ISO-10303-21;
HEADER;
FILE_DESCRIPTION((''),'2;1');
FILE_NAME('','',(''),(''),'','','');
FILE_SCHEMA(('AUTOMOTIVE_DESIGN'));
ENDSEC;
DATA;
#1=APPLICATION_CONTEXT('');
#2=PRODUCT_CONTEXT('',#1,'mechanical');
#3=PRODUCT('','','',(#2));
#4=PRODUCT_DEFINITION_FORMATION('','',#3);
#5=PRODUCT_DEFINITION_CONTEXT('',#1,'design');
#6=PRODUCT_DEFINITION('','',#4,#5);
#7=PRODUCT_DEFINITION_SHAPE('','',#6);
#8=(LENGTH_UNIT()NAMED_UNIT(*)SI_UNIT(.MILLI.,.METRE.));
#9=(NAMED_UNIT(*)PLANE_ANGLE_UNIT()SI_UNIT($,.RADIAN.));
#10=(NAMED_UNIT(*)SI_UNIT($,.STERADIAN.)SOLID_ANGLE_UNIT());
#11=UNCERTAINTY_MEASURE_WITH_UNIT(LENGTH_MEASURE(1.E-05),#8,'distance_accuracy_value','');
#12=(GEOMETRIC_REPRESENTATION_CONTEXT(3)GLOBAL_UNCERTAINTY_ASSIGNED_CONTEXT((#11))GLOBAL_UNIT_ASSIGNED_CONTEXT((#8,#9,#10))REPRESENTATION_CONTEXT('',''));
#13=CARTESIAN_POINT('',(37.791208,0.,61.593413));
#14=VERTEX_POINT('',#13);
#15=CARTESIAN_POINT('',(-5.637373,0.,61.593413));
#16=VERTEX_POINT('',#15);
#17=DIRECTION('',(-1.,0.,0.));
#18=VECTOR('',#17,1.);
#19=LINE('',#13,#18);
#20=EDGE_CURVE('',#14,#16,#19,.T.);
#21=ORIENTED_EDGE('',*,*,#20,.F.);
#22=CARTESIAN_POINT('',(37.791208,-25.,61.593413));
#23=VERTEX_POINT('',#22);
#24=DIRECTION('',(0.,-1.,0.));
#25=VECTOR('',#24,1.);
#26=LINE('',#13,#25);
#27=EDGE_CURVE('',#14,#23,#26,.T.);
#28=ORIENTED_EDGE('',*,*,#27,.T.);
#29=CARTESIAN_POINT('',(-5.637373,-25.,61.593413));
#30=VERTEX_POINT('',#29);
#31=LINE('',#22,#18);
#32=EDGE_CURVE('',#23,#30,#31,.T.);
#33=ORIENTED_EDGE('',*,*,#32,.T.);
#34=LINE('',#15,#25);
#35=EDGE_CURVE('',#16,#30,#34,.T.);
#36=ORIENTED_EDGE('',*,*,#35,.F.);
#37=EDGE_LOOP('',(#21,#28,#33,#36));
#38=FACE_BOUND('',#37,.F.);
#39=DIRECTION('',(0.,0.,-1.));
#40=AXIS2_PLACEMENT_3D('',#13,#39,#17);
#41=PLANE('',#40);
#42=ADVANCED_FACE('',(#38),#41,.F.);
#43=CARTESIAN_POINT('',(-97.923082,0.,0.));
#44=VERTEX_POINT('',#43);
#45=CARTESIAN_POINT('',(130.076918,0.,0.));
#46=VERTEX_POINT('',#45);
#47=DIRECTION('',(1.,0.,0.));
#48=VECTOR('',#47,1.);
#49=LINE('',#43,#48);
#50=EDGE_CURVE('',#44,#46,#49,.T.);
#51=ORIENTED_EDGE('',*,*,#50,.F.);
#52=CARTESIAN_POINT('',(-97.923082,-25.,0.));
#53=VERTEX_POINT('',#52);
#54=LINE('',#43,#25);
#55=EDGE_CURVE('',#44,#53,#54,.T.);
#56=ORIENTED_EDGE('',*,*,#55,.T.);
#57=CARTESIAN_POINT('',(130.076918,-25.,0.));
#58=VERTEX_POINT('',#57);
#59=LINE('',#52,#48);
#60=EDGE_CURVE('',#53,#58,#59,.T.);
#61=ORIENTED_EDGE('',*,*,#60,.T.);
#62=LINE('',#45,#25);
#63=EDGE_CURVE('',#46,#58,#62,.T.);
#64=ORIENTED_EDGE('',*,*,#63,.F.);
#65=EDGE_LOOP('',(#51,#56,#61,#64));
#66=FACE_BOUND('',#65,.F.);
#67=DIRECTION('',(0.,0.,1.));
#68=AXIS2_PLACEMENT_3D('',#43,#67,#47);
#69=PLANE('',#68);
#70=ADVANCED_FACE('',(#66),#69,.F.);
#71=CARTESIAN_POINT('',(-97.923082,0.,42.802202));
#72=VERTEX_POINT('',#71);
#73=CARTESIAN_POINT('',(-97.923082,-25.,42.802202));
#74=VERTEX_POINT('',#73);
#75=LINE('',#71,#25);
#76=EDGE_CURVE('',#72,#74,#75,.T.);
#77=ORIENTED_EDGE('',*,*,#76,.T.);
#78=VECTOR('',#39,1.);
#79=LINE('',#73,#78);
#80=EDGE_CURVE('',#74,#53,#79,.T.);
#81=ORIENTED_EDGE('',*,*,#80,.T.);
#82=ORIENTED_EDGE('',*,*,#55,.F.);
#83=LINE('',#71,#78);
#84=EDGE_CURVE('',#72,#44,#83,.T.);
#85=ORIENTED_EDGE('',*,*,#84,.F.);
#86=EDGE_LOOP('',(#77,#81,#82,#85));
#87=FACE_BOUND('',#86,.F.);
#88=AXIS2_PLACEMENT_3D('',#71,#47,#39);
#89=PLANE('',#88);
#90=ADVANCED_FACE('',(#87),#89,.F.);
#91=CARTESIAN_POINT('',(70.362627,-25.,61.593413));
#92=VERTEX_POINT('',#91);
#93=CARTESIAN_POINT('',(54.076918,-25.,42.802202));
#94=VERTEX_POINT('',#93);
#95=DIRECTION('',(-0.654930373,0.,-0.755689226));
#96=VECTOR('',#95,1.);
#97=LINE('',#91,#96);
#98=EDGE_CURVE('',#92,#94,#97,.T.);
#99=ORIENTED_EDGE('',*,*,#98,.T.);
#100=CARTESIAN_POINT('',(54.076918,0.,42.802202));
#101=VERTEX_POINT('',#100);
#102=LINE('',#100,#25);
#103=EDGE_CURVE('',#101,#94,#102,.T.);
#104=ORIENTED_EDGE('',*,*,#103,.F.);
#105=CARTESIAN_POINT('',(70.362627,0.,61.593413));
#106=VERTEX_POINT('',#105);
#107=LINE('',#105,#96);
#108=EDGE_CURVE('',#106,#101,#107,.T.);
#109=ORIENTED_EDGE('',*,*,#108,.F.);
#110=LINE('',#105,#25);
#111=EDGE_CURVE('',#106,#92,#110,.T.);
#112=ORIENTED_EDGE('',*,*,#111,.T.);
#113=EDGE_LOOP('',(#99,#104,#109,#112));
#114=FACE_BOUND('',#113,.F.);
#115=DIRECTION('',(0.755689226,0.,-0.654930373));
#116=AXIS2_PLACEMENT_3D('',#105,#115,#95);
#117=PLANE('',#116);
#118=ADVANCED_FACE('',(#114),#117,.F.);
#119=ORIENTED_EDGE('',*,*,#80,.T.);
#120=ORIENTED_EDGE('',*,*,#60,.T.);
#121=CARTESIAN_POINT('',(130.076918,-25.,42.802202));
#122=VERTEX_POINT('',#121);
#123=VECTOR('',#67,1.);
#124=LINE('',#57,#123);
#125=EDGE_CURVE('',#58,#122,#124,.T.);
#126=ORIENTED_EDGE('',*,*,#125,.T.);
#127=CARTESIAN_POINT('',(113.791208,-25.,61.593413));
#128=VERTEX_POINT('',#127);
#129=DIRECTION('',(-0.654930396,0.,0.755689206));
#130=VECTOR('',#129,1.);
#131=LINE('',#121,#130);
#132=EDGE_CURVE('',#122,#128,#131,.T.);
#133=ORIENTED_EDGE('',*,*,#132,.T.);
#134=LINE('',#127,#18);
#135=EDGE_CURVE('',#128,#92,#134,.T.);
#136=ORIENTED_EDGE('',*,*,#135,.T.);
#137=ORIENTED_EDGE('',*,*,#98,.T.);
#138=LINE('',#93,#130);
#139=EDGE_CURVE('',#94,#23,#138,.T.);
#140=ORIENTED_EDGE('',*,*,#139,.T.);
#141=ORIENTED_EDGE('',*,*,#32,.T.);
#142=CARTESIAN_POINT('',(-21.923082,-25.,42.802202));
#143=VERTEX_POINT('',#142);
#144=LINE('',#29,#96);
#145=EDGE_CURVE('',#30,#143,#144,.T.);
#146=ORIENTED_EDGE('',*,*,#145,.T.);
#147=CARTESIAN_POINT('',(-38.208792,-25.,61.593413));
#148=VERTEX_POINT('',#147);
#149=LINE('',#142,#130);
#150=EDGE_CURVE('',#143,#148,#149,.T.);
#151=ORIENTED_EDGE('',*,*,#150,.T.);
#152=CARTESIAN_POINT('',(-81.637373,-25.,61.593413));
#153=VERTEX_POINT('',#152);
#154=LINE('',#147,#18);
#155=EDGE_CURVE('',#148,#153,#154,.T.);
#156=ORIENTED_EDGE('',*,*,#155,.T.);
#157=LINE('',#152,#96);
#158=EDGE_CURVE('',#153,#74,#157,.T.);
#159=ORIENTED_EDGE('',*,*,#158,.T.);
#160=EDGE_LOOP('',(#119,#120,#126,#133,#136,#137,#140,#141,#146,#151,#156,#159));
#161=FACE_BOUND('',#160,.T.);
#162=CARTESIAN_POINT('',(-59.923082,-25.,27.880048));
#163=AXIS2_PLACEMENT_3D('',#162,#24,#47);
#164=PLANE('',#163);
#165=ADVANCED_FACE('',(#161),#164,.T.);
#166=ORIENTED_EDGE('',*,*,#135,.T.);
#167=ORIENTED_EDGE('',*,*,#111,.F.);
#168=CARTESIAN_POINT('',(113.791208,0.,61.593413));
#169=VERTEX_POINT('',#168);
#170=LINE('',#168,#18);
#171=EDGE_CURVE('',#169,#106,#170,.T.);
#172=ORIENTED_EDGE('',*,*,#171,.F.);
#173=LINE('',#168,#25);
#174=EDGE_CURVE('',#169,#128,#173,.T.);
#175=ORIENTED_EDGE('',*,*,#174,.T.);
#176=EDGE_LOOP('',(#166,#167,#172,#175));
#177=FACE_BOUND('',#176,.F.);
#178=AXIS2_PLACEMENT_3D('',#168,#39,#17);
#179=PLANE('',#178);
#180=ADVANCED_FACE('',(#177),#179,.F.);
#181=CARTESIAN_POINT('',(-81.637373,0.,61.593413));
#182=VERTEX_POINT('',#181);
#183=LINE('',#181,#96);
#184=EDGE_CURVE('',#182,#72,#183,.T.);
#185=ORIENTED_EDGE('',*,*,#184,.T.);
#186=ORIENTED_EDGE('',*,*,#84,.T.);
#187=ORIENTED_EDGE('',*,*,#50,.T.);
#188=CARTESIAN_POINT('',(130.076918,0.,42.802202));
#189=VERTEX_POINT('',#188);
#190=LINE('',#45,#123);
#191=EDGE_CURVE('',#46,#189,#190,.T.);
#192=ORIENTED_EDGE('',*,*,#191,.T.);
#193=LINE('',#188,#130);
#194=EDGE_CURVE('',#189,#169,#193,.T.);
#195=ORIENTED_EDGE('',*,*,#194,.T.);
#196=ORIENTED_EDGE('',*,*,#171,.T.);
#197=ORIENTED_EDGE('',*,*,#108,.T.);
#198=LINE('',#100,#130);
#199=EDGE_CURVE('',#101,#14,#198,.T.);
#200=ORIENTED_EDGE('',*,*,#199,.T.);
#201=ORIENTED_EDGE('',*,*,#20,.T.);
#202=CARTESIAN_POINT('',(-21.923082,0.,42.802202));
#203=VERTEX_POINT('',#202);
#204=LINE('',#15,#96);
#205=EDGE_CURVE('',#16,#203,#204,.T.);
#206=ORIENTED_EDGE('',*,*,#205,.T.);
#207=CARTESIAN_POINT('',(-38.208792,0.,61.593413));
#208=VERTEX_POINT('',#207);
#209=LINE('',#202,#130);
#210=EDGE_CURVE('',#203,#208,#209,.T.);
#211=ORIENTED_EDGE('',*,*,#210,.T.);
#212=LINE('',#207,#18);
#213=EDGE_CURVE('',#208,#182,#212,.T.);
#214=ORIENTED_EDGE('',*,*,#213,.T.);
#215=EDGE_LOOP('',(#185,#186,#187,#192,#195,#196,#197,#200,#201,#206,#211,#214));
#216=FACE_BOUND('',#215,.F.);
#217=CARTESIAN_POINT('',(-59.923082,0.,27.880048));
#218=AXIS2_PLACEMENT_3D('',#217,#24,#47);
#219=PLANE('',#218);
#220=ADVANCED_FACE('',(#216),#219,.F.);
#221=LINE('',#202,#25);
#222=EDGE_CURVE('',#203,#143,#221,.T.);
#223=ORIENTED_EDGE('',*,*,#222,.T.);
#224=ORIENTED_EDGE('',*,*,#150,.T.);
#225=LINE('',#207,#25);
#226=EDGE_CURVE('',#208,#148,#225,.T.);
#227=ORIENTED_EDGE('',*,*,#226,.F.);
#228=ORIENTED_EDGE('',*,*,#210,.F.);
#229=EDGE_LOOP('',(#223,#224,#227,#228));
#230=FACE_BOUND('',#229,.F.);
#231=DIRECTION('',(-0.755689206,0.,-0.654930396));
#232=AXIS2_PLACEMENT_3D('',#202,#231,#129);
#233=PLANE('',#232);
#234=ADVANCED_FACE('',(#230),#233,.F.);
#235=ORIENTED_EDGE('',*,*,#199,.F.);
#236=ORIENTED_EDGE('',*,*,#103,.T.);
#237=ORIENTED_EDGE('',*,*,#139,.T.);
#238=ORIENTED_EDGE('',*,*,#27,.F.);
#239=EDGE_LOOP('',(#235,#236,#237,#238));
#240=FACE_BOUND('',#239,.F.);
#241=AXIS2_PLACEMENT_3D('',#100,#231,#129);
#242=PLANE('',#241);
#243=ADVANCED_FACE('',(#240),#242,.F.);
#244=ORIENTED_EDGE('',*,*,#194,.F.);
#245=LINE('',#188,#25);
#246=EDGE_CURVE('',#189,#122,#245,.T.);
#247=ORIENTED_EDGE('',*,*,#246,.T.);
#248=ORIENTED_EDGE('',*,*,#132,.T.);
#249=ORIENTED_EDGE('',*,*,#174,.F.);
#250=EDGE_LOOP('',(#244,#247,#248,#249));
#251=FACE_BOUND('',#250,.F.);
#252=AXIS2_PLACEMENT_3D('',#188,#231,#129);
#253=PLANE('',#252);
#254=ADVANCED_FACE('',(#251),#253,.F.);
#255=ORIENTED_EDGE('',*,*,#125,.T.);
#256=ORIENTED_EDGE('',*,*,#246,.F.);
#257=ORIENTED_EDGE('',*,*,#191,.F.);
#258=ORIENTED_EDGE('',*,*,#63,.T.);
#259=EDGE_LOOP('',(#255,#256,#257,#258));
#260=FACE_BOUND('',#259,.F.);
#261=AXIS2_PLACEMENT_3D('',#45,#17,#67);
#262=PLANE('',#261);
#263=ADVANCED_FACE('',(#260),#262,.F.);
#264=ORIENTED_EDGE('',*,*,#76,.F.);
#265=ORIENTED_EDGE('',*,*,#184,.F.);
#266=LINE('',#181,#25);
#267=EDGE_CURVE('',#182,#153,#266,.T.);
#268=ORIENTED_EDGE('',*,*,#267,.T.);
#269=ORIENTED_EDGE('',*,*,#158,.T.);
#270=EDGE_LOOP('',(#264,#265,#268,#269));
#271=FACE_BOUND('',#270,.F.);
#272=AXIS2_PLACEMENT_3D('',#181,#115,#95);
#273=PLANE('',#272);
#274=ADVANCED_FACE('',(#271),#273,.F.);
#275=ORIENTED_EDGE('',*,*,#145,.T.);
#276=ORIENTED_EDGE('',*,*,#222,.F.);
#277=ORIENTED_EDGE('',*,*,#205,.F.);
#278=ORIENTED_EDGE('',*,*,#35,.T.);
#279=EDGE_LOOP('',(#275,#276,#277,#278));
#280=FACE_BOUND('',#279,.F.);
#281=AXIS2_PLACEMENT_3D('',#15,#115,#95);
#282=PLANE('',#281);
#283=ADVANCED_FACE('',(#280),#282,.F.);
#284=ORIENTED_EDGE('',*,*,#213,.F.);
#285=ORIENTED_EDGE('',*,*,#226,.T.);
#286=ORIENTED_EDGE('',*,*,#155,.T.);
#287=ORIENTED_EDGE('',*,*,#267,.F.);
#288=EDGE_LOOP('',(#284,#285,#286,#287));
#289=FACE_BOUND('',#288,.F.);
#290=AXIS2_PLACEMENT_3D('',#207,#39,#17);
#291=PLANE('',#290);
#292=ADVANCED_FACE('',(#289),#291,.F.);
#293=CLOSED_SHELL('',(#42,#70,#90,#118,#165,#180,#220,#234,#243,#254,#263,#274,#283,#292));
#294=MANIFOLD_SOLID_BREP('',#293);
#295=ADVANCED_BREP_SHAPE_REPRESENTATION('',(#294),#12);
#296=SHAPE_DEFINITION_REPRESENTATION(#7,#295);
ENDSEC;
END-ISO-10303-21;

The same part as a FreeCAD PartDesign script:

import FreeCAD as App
import Part
import Sketcher
from FreeCAD import Vector
Q = App.Units.Quantity


def add_polygon(sketch, points):
    """Adds a closed chain of lines whose ends are joined by coincident constraints."""
    first, n = sketch.GeometryCount, len(points)
    for a, b in zip(points, points[1:] + points[:1]):
        sketch.addGeometry(Part.LineSegment(App.Vector(*a, 0), App.Vector(*b, 0)), False)
    for i in range(n):
        sketch.addConstraint(Sketcher.Constraint("Coincident", first + i, 2, first + (i + 1) % n, 1))

doc = App.newDocument("Part")
params = doc.addObject("Spreadsheet::Sheet", "Params")
for row, (alias, value) in enumerate([
    ("sketch1_width", "228 mm"),
    ("pad1_length", "25 mm"),
], start=1):
    params.set(f"A{row}", alias)
    params.set(f"B{row}", "=" + value)
    params.setAlias(f"B{row}", alias)

body = doc.addObject("PartDesign::Body", "Body")

# Sketch on XZ plane
sketch1 = doc.addObject("Sketcher::SketchObject", "Sketch")
body.addObject(sketch1)
sketch1.AttachmentSupport = (doc.XZ_Plane, [""])
sketch1.MapMode = "FlatFace"
add_polygon(sketch1, [(-98, 43), (-98, 0), (130, 0), (130, 43), (114, 62), (70, 62), (54, 43), (38, 62), (-6, 62), (-22, 43), (-38, 62), (-82, 62)])  # lines 0-11
sketch1.addConstraint([
    Sketcher.Constraint("Vertical", 0),
    Sketcher.Constraint("Horizontal", 1),
    Sketcher.Constraint("Vertical", 2),
    Sketcher.Constraint("Horizontal", 4),
    Sketcher.Constraint("Horizontal", 7),
    Sketcher.Constraint("Horizontal", 10),
    Sketcher.Constraint("PointOnObject", 0, 2, -1),
    Sketcher.Constraint("Parallel", 3, 6),
    Sketcher.Constraint("Parallel", 5, 8),
    Sketcher.Constraint("Parallel", 6, 9),
    Sketcher.Constraint("Parallel", 8, 11),
    Sketcher.Constraint("Horizontal", 2, 2, 5, 2),
    Sketcher.Constraint("Horizontal", 4, 2, 6, 2),
    Sketcher.Constraint("Horizontal", 5, 2, 8, 2),
    Sketcher.Constraint("Horizontal", 7, 2, 9, 2),
    Sketcher.Constraint("Horizontal", 8, 2, 11, 2),
    Sketcher.Constraint("Equal", 4, 7),
    Sketcher.Constraint("Equal", 7, 10),
    Sketcher.Constraint("Equal", 3, 5),
    Sketcher.Constraint("DistanceX", 1, 1, 1, 2, Q("228 mm")),
    Sketcher.Constraint("DistanceX", 4, 2, 4, 1, Q("43.428581 mm")),
    Sketcher.Constraint("Distance", 3, Q("24.866322 mm")),
    Sketcher.Constraint("DistanceY", 0, 2, 0, 1, Q("42.802202 mm")),
    Sketcher.Constraint("DistanceX", 0, 2, -1, 1, Q("97.923082 mm")),
])
sketch1.setExpression("Constraints[31]", "Params.sketch1_width")
pad1 = doc.addObject("PartDesign::Pad", "Pad")
body.addObject(pad1)
pad1.Profile = sketch1
pad1.setExpression("Length", "Params.pad1_length")

doc.recompute()
